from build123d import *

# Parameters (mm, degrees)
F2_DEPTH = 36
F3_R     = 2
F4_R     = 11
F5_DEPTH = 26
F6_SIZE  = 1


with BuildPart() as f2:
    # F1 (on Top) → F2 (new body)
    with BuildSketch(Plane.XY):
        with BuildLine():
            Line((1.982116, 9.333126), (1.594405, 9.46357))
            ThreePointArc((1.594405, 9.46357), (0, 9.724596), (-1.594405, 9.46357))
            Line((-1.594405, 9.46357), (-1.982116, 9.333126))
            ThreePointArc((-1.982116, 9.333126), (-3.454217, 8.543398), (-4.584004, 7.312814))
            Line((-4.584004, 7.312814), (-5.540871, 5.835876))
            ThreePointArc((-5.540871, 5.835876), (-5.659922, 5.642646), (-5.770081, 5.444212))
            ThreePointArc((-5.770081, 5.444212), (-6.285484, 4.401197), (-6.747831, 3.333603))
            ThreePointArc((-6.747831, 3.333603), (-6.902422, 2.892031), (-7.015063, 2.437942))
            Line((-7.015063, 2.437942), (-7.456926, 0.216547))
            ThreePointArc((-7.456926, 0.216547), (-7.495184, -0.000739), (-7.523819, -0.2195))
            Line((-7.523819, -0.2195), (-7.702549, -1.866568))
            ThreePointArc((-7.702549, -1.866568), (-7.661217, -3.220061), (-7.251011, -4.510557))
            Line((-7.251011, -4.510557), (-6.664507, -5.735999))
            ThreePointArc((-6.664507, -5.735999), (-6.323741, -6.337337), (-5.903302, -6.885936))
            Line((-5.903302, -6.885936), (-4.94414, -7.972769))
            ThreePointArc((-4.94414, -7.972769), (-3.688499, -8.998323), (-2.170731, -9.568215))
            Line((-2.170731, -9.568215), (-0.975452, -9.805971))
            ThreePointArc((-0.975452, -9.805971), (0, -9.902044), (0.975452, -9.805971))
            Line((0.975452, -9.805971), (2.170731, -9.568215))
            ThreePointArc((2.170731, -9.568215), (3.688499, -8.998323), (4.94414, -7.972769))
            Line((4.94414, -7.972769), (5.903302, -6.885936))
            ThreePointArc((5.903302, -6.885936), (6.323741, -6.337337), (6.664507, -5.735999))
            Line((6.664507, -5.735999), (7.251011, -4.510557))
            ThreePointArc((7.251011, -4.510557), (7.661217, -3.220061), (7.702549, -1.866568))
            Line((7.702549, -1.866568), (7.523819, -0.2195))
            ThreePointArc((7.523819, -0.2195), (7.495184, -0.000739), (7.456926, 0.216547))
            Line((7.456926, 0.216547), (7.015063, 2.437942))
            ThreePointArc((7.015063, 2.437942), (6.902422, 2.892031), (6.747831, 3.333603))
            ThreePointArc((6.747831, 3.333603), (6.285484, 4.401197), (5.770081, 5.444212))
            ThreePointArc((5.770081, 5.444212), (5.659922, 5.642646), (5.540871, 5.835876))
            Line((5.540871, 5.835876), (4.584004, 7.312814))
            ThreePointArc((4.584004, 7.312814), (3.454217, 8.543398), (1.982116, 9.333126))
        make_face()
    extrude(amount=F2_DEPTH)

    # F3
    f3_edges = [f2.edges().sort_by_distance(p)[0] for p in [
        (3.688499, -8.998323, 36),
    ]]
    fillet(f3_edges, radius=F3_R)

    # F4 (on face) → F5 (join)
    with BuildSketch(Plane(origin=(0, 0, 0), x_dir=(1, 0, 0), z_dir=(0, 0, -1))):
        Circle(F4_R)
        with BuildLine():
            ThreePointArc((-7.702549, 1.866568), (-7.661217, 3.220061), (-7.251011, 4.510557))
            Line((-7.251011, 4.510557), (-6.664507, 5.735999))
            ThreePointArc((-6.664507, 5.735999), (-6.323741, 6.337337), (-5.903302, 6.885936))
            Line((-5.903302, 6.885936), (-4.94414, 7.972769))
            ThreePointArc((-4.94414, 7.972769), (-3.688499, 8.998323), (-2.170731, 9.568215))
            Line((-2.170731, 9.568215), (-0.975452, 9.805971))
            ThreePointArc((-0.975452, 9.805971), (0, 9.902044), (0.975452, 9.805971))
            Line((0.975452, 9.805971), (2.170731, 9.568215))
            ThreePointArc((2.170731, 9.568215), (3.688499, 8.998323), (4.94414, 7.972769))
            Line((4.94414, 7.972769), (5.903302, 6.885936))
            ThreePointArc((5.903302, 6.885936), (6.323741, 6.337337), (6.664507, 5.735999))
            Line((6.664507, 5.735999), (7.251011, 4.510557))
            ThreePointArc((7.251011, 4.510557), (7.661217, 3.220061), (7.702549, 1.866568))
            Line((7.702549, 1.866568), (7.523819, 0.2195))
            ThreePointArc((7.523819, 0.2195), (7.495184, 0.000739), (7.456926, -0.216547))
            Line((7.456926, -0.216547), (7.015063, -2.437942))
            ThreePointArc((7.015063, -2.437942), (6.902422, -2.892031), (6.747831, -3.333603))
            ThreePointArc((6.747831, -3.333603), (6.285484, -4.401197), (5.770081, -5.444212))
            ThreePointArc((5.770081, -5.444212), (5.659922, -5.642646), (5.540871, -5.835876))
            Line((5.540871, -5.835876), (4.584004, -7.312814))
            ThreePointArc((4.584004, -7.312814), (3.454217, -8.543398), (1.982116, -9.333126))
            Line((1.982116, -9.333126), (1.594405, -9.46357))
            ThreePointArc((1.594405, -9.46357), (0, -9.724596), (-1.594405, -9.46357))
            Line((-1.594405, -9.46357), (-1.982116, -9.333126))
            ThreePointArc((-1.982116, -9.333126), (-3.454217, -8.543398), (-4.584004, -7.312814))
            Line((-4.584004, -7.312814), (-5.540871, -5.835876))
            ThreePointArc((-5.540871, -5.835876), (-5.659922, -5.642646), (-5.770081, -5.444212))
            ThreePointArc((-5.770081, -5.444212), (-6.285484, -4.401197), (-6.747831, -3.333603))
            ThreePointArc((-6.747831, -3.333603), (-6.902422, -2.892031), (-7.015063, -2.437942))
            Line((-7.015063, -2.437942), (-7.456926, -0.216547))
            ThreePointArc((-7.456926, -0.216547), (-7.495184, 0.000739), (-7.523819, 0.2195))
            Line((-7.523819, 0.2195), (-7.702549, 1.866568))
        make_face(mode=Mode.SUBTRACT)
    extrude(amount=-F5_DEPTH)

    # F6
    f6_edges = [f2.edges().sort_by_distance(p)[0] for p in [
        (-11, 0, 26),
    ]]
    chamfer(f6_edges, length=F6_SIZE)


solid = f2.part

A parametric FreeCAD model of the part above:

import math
import FreeCAD as App
import Part
import Sketcher


def edges_at(feature, points):
    """Names of the edges that pass closest to the given points."""
    edges = feature.Shape.Edges
    near = lambda p: min(range(len(edges)), key=lambda i: edges[i].distToShape(Part.Vertex(*p))[0])
    return sorted({f"Edge{near(p) + 1}" for p in points})

doc = App.newDocument("Part")
body = doc.addObject("PartDesign::Body", "Body")

sketch1 = body.newObject("Sketcher::SketchObject", "Sketch")
sketch1.AttachmentSupport = (doc.getObject("XY_Plane"), [""])
sketch1.MapMode = "FlatFace"
sketch1.addGeometry(Part.LineSegment(App.Vector(1.982116, 9.333126, 0), App.Vector(1.594405, 9.46357, 0)), False)
sketch1.addGeometry(Part.ArcOfCircle(Part.Circle(App.Vector(0, 4.724592, 0), App.Vector(0, 0, 1), 5.000004), math.radians(71.404748), math.radians(108.595252)), False)
sketch1.addGeometry(Part.LineSegment(App.Vector(-1.594405, 9.46357, 0), App.Vector(-1.982116, 9.333126, 0)), False)
sketch1.addGeometry(Part.ArcOfCircle(Part.Circle(App.Vector(-0.387714, 4.594157, 0), App.Vector(0, 0, 1), 4.999995), math.radians(108.595251), math.radians(147.061943)), False)
sketch1.addGeometry(Part.LineSegment(App.Vector(-4.584004, 7.312814, 0), App.Vector(-5.540871, 5.835876, 0)), False)
sketch1.addGeometry(Part.ArcOfCircle(Part.Circle(App.Vector(-1.34486, 3.117381, 0), App.Vector(0, 0, 1), 4.999673), math.radians(147.061765), math.radians(152.264101)), False)
sketch1.addGeometry(Part.ArcOfCircle(Part.Circle(App.Vector(14.718115, -5.328824, 0), App.Vector(0, 0, 1), 23.147883), math.radians(152.263856), math.radians(158.023818)), False)
sketch1.addGeometry(Part.ArcOfCircle(Part.Circle(App.Vector(-2.111213, 1.462512, 0), App.Vector(0, 0, 1), 4.999921), math.radians(158.02363), math.radians(168.750069)), False)
sketch1.addGeometry(Part.LineSegment(App.Vector(-7.015063, 2.437942, 0), App.Vector(-7.456926, 0.216547, 0)), False)
sketch1.addGeometry(Part.ArcOfCircle(Part.Circle(App.Vector(-2.553033, -0.758903, 0), App.Vector(0, 0, 1), 4.999967), math.radians(168.749946), math.radians(173.806806)), False)
sketch1.addGeometry(Part.LineSegment(App.Vector(-7.523819, -0.2195, 0), App.Vector(-7.702549, -1.866568, 0)), False)
sketch1.addGeometry(Part.ArcOfCircle(Part.Circle(App.Vector(-2.831151, -2.395186, 0), App.Vector(0, 0, 1), 4.899995), math.radians(173.806798), math.radians(205.576049)), False)
sketch1.addGeometry(Part.LineSegment(App.Vector(-7.251011, -4.510557, 0), App.Vector(-6.664507, -5.735999, 0)), False)
sketch1.addGeometry(Part.ArcOfCircle(Part.Circle(App.Vector(-2.154483, -3.577482, 0), App.Vector(0, 0, 1), 4.999952), math.radians(-154.424019), math.radians(-138.570555)), False)
sketch1.addGeometry(Part.LineSegment(App.Vector(-5.903302, -6.885936, 0), App.Vector(-4.94414, -7.972769, 0)), False)
sketch1.addGeometry(Part.ArcOfCircle(Part.Circle(App.Vector(-1.195278, -4.664287, 0), App.Vector(0, 0, 1), 5.000002), math.radians(-138.57064), math.radians(-101.25001)), False)
sketch1.addGeometry(Part.LineSegment(App.Vector(-2.170731, -9.568215, 0), App.Vector(-0.975452, -9.805971, 0)), False)
sketch1.addGeometry(Part.ArcOfCircle(Part.Circle(App.Vector(0, -4.90201, 0), App.Vector(0, 0, 1), 5.000034), math.radians(-101.249926), math.radians(-78.750074)), False)
sketch1.addGeometry(Part.LineSegment(App.Vector(0.975452, -9.805971, 0), App.Vector(2.170731, -9.568215, 0)), False)
sketch1.addGeometry(Part.ArcOfCircle(Part.Circle(App.Vector(1.195278, -4.664287, 0), App.Vector(0, 0, 1), 5.000002), math.radians(-78.74999), math.radians(-41.42936)), False)
sketch1.addGeometry(Part.LineSegment(App.Vector(4.94414, -7.972769, 0), App.Vector(5.903302, -6.885936, 0)), False)
sketch1.addGeometry(Part.ArcOfCircle(Part.Circle(App.Vector(2.154483, -3.577482, 0), App.Vector(0, 0, 1), 4.999952), math.radians(-41.429445), math.radians(-25.575981)), False)
sketch1.addGeometry(Part.LineSegment(App.Vector(6.664507, -5.735999, 0), App.Vector(7.251011, -4.510557, 0)), False)
sketch1.addGeometry(Part.ArcOfCircle(Part.Circle(App.Vector(2.831151, -2.395186, 0), App.Vector(0, 0, 1), 4.899995), math.radians(-25.576049), math.radians(6.193202)), False)
sketch1.addGeometry(Part.LineSegment(App.Vector(7.702549, -1.866568, 0), App.Vector(7.523819, -0.2195, 0)), False)
sketch1.addGeometry(Part.ArcOfCircle(Part.Circle(App.Vector(2.553033, -0.758903, 0), App.Vector(0, 0, 1), 4.999967), math.radians(6.193194), math.radians(11.250054)), False)
sketch1.addGeometry(Part.LineSegment(App.Vector(7.456926, 0.216547, 0), App.Vector(7.015063, 2.437942, 0)), False)
sketch1.addGeometry(Part.ArcOfCircle(Part.Circle(App.Vector(2.111213, 1.462512, 0), App.Vector(0, 0, 1), 4.999921), math.radians(11.249931), math.radians(21.97637)), False)
sketch1.addGeometry(Part.ArcOfCircle(Part.Circle(App.Vector(-14.718115, -5.328824, 0), App.Vector(0, 0, 1), 23.147883), math.radians(21.976182), math.radians(27.736144)), False)
sketch1.addGeometry(Part.ArcOfCircle(Part.Circle(App.Vector(1.34486, 3.117381, 0), App.Vector(0, 0, 1), 4.999673), math.radians(27.735899), math.radians(32.938235)), False)
sketch1.addGeometry(Part.LineSegment(App.Vector(5.540871, 5.835876, 0), App.Vector(4.584004, 7.312814, 0)), False)
sketch1.addGeometry(Part.ArcOfCircle(Part.Circle(App.Vector(0.387714, 4.594157, 0), App.Vector(0, 0, 1), 4.999995), math.radians(32.938057), math.radians(71.404749)), False)
sketch1.addConstraint(Sketcher.Constraint("Coincident", 0, 2, 1, 1))
sketch1.addConstraint(Sketcher.Constraint("Coincident", 1, 2, 2, 1))
sketch1.addConstraint(Sketcher.Constraint("Coincident", 2, 2, 3, 1))
sketch1.addConstraint(Sketcher.Constraint("Coincident", 3, 2, 4, 1))
sketch1.addConstraint(Sketcher.Constraint("Coincident", 4, 2, 5, 1))
sketch1.addConstraint(Sketcher.Constraint("Coincident", 5, 2, 6, 1))
sketch1.addConstraint(Sketcher.Constraint("Coincident", 6, 2, 7, 1))
sketch1.addConstraint(Sketcher.Constraint("Coincident", 7, 2, 8, 1))
sketch1.addConstraint(Sketcher.Constraint("Coincident", 8, 2, 9, 1))
sketch1.addConstraint(Sketcher.Constraint("Coincident", 9, 2, 10, 1))
sketch1.addConstraint(Sketcher.Constraint("Coincident", 10, 2, 11, 1))
sketch1.addConstraint(Sketcher.Constraint("Coincident", 11, 2, 12, 1))
sketch1.addConstraint(Sketcher.Constraint("Coincident", 12, 2, 13, 1))
sketch1.addConstraint(Sketcher.Constraint("Coincident", 13, 2, 14, 1))
sketch1.addConstraint(Sketcher.Constraint("Coincident", 14, 2, 15, 1))
sketch1.addConstraint(Sketcher.Constraint("Coincident", 15, 2, 16, 1))
sketch1.addConstraint(Sketcher.Constraint("Coincident", 16, 2, 17, 1))
sketch1.addConstraint(Sketcher.Constraint("Coincident", 17, 2, 18, 1))
sketch1.addConstraint(Sketcher.Constraint("Coincident", 18, 2, 19, 1))
sketch1.addConstraint(Sketcher.Constraint("Coincident", 19, 2, 20, 1))
sketch1.addConstraint(Sketcher.Constraint("Coincident", 20, 2, 21, 1))
sketch1.addConstraint(Sketcher.Constraint("Coincident", 21, 2, 22, 1))
sketch1.addConstraint(Sketcher.Constraint("Coincident", 22, 2, 23, 1))
sketch1.addConstraint(Sketcher.Constraint("Coincident", 23, 2, 24, 1))
sketch1.addConstraint(Sketcher.Constraint("Coincident", 24, 2, 25, 1))
sketch1.addConstraint(Sketcher.Constraint("Coincident", 25, 2, 26, 1))
sketch1.addConstraint(Sketcher.Constraint("Coincident", 26, 2, 27, 1))
sketch1.addConstraint(Sketcher.Constraint("Coincident", 27, 2, 28, 1))
sketch1.addConstraint(Sketcher.Constraint("Coincident", 28, 2, 29, 1))
sketch1.addConstraint(Sketcher.Constraint("Coincident", 29, 2, 30, 1))
sketch1.addConstraint(Sketcher.Constraint("Coincident", 30, 2, 31, 1))
sketch1.addConstraint(Sketcher.Constraint("Coincident", 31, 2, 0, 1))
sketch1.addConstraint(Sketcher.Constraint("PointOnObject", 1, 3, -2))
sketch1.addConstraint(Sketcher.Constraint("PointOnObject", 17, 3, -2))
sketch1.addConstraint(Sketcher.Constraint("Radius", 15, 5.000002))
sketch1.addConstraint(Sketcher.Constraint("Radius", 19, 5.000002))
sketch1.addConstraint(Sketcher.Constraint("Radius", 7, 4.999921))
sketch1.addConstraint(Sketcher.Constraint("Radius", 13, 4.999952))
sketch1.addConstraint(Sketcher.Constraint("Radius", 21, 4.999952))
sketch1.addConstraint(Sketcher.Constraint("Radius", 27, 4.999921))
sketch1.addConstraint(Sketcher.Constraint("DistanceY", 12, 2, -1, 1, 5.735999))
sketch1.addConstraint(Sketcher.Constraint("DistanceY", 21, 2, -1, 1, 5.735999))
sketch1.addConstraint(Sketcher.Constraint("Radius", 1, 5.000004))
sketch1.addConstraint(Sketcher.Constraint("Radius", 3, 4.999995))
sketch1.addConstraint(Sketcher.Constraint("Radius", 5, 4.999673))
sketch1.addConstraint(Sketcher.Constraint("Radius", 6, 23.147883))
sketch1.addConstraint(Sketcher.Constraint("Radius", 9, 4.999967))
sketch1.addConstraint(Sketcher.Constraint("Radius", 11, 4.899995))
sketch1.addConstraint(Sketcher.Constraint("Radius", 17, 5.000034))
sketch1.addConstraint(Sketcher.Constraint("Radius", 23, 4.899995))
sketch1.addConstraint(Sketcher.Constraint("Radius", 25, 4.999967))
sketch1.addConstraint(Sketcher.Constraint("Radius", 28, 23.147883))
sketch1.addConstraint(Sketcher.Constraint("Radius", 29, 4.999673))
sketch1.addConstraint(Sketcher.Constraint("Radius", 31, 4.999995))
sketch1.addConstraint(Sketcher.Constraint("DistanceY", 9, 2, -1, 1, 0.2195))
sketch1.addConstraint(Sketcher.Constraint("DistanceX", 13, 2, -1, 1, 5.903302))
sketch1.addConstraint(Sketcher.Constraint("DistanceY", 24, 2, -1, 1, 0.2195))
sketch1.addConstraint(Sketcher.Constraint("DistanceX", 7, 3, 3, 3, 1.723499))
sketch1.addConstraint(Sketcher.Constraint("DistanceY", 11, 3, 7, 3, 3.857698))
sketch1.addConstraint(Sketcher.Constraint("DistanceY", 15, 3, 11, 3, 2.269101))
sketch1.addConstraint(Sketcher.Constraint("DistanceY", 19, 3, 11, 3, 2.269101))
sketch1.addConstraint(Sketcher.Constraint("DistanceY", 19, 3, 23, 3, 2.269101))
sketch1.addConstraint(Sketcher.Constraint("DistanceY", 23, 3, 27, 3, 3.857698))
sketch1.addConstraint(Sketcher.Constraint("DistanceX", 28, 3, 7, 3, 12.606902))
sketch1.addConstraint(Sketcher.Constraint("DistanceX", 31, 3, 27, 3, 1.723499))
sketch1.addConstraint(Sketcher.Constraint("DistanceX", 3, 2, 1, 2, 2.989599))
sketch1.addConstraint(Sketcher.Constraint("DistanceY", 5, 2, 3, 2, 1.868602))
sketch1.addConstraint(Sketcher.Constraint("DistanceY", 7, 3, 5, 2, 3.9817))
sketch1.addConstraint(Sketcher.Constraint("DistanceY", 16, 2, 14, 2, 1.833202))
sketch1.addConstraint(Sketcher.Constraint("DistanceY", 27, 3, 28, 2, 3.9817))
sketch1.addConstraint(Sketcher.Constraint("DistanceY", 28, 2, 30, 2, 1.868602))
sketch1.addConstraint(Sketcher.Constraint("DistanceX", 0, 2, 30, 2, 2.989599))
sketch1.addConstraint(Sketcher.Constraint("Distance", 14, 1.449551))
sketch1.addConstraint(Sketcher.Constraint("Distance", 20, 1.449551))
sketch1.addConstraint(Sketcher.Constraint("DistanceX", 5, 3, -1, 1, 1.34486))
sketch1.addConstraint(Sketcher.Constraint("DistanceY", -1, 1, 5, 3, 3.117381))
sketch1.addConstraint(Sketcher.Constraint("DistanceY", -1, 1, 7, 3, 1.462512))
sketch1.addConstraint(Sketcher.Constraint("DistanceX", 11, 3, -1, 1, 2.831151))
sketch1.addConstraint(Sketcher.Constraint("DistanceY", 13, 3, -1, 1, 3.577482))
sketch1.addConstraint(Sketcher.Constraint("DistanceX", 15, 3, -1, 1, 1.195278))
sketch1.addConstraint(Sketcher.Constraint("DistanceY", 17, 3, -1, 1, 4.90201))
sketch1.addConstraint(Sketcher.Constraint("DistanceX", -1, 1, 19, 3, 1.195278))
sketch1.addConstraint(Sketcher.Constraint("DistanceY", 21, 3, -1, 1, 3.577482))
sketch1.addConstraint(Sketcher.Constraint("DistanceX", -1, 1, 23, 3, 2.831151))
sketch1.addConstraint(Sketcher.Constraint("DistanceX", -1, 1, 29, 3, 1.34486))
sketch1.addConstraint(Sketcher.Constraint("DistanceY", -1, 1, 29, 3, 3.117381))
sketch1.addConstraint(Sketcher.Constraint("DistanceY", -1, 1, 0, 2, 9.46357))
sketch1.addConstraint(Sketcher.Constraint("DistanceY", -1, 1, 1, 2, 9.46357))
sketch1.addConstraint(Sketcher.Constraint("DistanceX", 4, 2, -1, 1, 5.540871))
sketch1.addConstraint(Sketcher.Constraint("DistanceX", 6, 2, -1, 1, 6.747831))
sketch1.addConstraint(Sketcher.Constraint("DistanceY", -1, 1, 7, 2, 2.437942))
sketch1.addConstraint(Sketcher.Constraint("DistanceX", 9, 2, -1, 1, 7.523819))
sketch1.addConstraint(Sketcher.Constraint("DistanceX", 10, 2, -1, 1, 7.702549))
sketch1.addConstraint(Sketcher.Constraint("DistanceX", 11, 2, -1, 1, 7.251011))
sketch1.addConstraint(Sketcher.Constraint("DistanceX", 14, 2, -1, 1, 4.94414))
sketch1.addConstraint(Sketcher.Constraint("DistanceX", 15, 2, -1, 1, 2.170731))
sketch1.addConstraint(Sketcher.Constraint("DistanceX", -1, 1, 17, 2, 0.975452))
sketch1.addConstraint(Sketcher.Constraint("DistanceX", -1, 1, 18, 2, 2.170731))
sketch1.addConstraint(Sketcher.Constraint("DistanceX", -1, 1, 19, 2, 4.94414))
sketch1.addConstraint(Sketcher.Constraint("DistanceX", -1, 1, 22, 2, 7.251011))
sketch1.addConstraint(Sketcher.Constraint("DistanceX", -1, 1, 23, 2, 7.702549))
sketch1.addConstraint(Sketcher.Constraint("DistanceX", -1, 1, 24, 2, 7.523819))
sketch1.addConstraint(Sketcher.Constraint("DistanceY", -1, 1, 26, 2, 2.437942))
sketch1.addConstraint(Sketcher.Constraint("DistanceX", -1, 1, 27, 2, 6.747831))
sketch1.addConstraint(Sketcher.Constraint("DistanceX", -1, 1, 29, 2, 5.540871))
sketch1.addConstraint(Sketcher.Constraint("DistanceY", 5, 3, 1, 3, 1.607212))
sketch1.addConstraint(Sketcher.Constraint("DistanceX", 3, 3, 6, 3, 15.105829))
sketch1.addConstraint(Sketcher.Constraint("DistanceX", 9, 3, 7, 3, 0.44182))
sketch1.addConstraint(Sketcher.Constraint("DistanceX", 15, 3, 21, 3, 3.349761))
sketch1.addConstraint(Sketcher.Constraint("DistanceX", 25, 3, 23, 3, 0.278118))
sketch1.addConstraint(Sketcher.Constraint("DistanceX", 2, 2, 1, 2, 0.387711))
sketch1.addConstraint(Sketcher.Constraint("DistanceY", 9, 3, 8, 2, 0.97545))
sketch1.addConstraint(Sketcher.Constraint("DistanceY", 25, 3, 25, 2, 0.97545))
sketch1.addConstraint(Sketcher.Constraint("DistanceX", 0, 2, 31, 2, 0.387711))
pad1 = body.newObject("PartDesign::Pad", "Pad")
pad1.Profile = sketch1
pad1.Length = 36
doc.recompute()

fillet = body.newObject("PartDesign::Fillet", "Fillet")
fillet.Base = (pad1, edges_at(pad1, [(3.688, -8.998, 36)]))
fillet.Radius = 2

sketch2 = body.newObject("Sketcher::SketchObject", "Sketch001")
sketch2.AttachmentSupport = (doc.getObject("XY_Plane"), [""])
sketch2.MapMode = "FlatFace"
sketch2.addGeometry(Part.Circle(App.Vector(0, 0, 0), App.Vector(0, 0, 1), 11), False)
sketch2.addGeometry(Part.LineSegment(App.Vector(-7.523819, -0.2195, 0), App.Vector(-7.702549, -1.866568, 0)), False)
sketch2.addGeometry(Part.ArcOfCircle(Part.Circle(App.Vector(-2.831151, -2.395186, 0), App.Vector(0, 0, 1), 4.899995), math.radians(173.806798), math.radians(205.576049)), False)
sketch2.addGeometry(Part.LineSegment(App.Vector(-7.251011, -4.510557, 0), App.Vector(-6.664507, -5.735999, 0)), False)
sketch2.addGeometry(Part.ArcOfCircle(Part.Circle(App.Vector(-2.154483, -3.577482, 0), App.Vector(0, 0, 1), 4.999952), math.radians(-154.424019), math.radians(-138.570555)), False)
sketch2.addGeometry(Part.LineSegment(App.Vector(-5.903302, -6.885936, 0), App.Vector(-4.94414, -7.972769, 0)), False)
sketch2.addGeometry(Part.ArcOfCircle(Part.Circle(App.Vector(-1.195278, -4.664287, 0), App.Vector(0, 0, 1), 5.000002), math.radians(-138.57064), math.radians(-101.25001)), False)
sketch2.addGeometry(Part.LineSegment(App.Vector(-2.170731, -9.568215, 0), App.Vector(-0.975452, -9.805971, 0)), False)
sketch2.addGeometry(Part.ArcOfCircle(Part.Circle(App.Vector(0, -4.90201, 0), App.Vector(0, 0, 1), 5.000034), math.radians(-101.249926), math.radians(-78.750074)), False)
sketch2.addGeometry(Part.LineSegment(App.Vector(0.975452, -9.805971, 0), App.Vector(2.170731, -9.568215, 0)), False)
sketch2.addGeometry(Part.ArcOfCircle(Part.Circle(App.Vector(1.195278, -4.664287, 0), App.Vector(0, 0, 1), 5.000002), math.radians(-78.74999), math.radians(-41.42936)), False)
sketch2.addGeometry(Part.LineSegment(App.Vector(4.94414, -7.972769, 0), App.Vector(5.903302, -6.885936, 0)), False)
sketch2.addGeometry(Part.ArcOfCircle(Part.Circle(App.Vector(2.154483, -3.577482, 0), App.Vector(0, 0, 1), 4.999952), math.radians(-41.429445), math.radians(-25.575981)), False)
sketch2.addGeometry(Part.LineSegment(App.Vector(6.664507, -5.735999, 0), App.Vector(7.251011, -4.510557, 0)), False)
sketch2.addGeometry(Part.ArcOfCircle(Part.Circle(App.Vector(2.831151, -2.395186, 0), App.Vector(0, 0, 1), 4.899995), math.radians(-25.576049), math.radians(6.193202)), False)
sketch2.addGeometry(Part.LineSegment(App.Vector(7.702549, -1.866568, 0), App.Vector(7.523819, -0.2195, 0)), False)
sketch2.addGeometry(Part.ArcOfCircle(Part.Circle(App.Vector(2.553033, -0.758903, 0), App.Vector(0, 0, 1), 4.999967), math.radians(6.193194), math.radians(11.250054)), False)
sketch2.addGeometry(Part.LineSegment(App.Vector(7.456926, 0.216547, 0), App.Vector(7.015063, 2.437942, 0)), False)
sketch2.addGeometry(Part.ArcOfCircle(Part.Circle(App.Vector(2.111213, 1.462512, 0), App.Vector(0, 0, 1), 4.999921), math.radians(11.249931), math.radians(21.97637)), False)
sketch2.addGeometry(Part.ArcOfCircle(Part.Circle(App.Vector(-14.718115, -5.328824, 0), App.Vector(0, 0, 1), 23.147883), math.radians(21.976182), math.radians(27.736144)), False)
sketch2.addGeometry(Part.ArcOfCircle(Part.Circle(App.Vector(1.34486, 3.117381, 0), App.Vector(0, 0, 1), 4.999673), math.radians(27.735899), math.radians(32.938235)), False)
sketch2.addGeometry(Part.LineSegment(App.Vector(5.540871, 5.835876, 0), App.Vector(4.584004, 7.312814, 0)), False)
sketch2.addGeometry(Part.ArcOfCircle(Part.Circle(App.Vector(0.387714, 4.594157, 0), App.Vector(0, 0, 1), 4.999995), math.radians(32.938057), math.radians(71.404749)), False)
sketch2.addGeometry(Part.LineSegment(App.Vector(1.982116, 9.333126, 0), App.Vector(1.594405, 9.46357, 0)), False)
sketch2.addGeometry(Part.ArcOfCircle(Part.Circle(App.Vector(0, 4.724592, 0), App.Vector(0, 0, 1), 5.000004), math.radians(71.404748), math.radians(108.595252)), False)
sketch2.addGeometry(Part.LineSegment(App.Vector(-1.594405, 9.46357, 0), App.Vector(-1.982116, 9.333126, 0)), False)
sketch2.addGeometry(Part.ArcOfCircle(Part.Circle(App.Vector(-0.387714, 4.594157, 0), App.Vector(0, 0, 1), 4.999995), math.radians(108.595251), math.radians(147.061943)), False)
sketch2.addGeometry(Part.LineSegment(App.Vector(-4.584004, 7.312814, 0), App.Vector(-5.540871, 5.835876, 0)), False)
sketch2.addGeometry(Part.ArcOfCircle(Part.Circle(App.Vector(-1.34486, 3.117381, 0), App.Vector(0, 0, 1), 4.999673), math.radians(147.061765), math.radians(152.264101)), False)
sketch2.addGeometry(Part.ArcOfCircle(Part.Circle(App.Vector(14.718115, -5.328824, 0), App.Vector(0, 0, 1), 23.147883), math.radians(152.263856), math.radians(158.023818)), False)
sketch2.addGeometry(Part.ArcOfCircle(Part.Circle(App.Vector(-2.111213, 1.462512, 0), App.Vector(0, 0, 1), 4.999921), math.radians(158.02363), math.radians(168.750069)), False)
sketch2.addGeometry(Part.LineSegment(App.Vector(-7.015063, 2.437942, 0), App.Vector(-7.456926, 0.216547, 0)), False)
sketch2.addGeometry(Part.ArcOfCircle(Part.Circle(App.Vector(-2.553033, -0.758903, 0), App.Vector(0, 0, 1), 4.999967), math.radians(168.749946), math.radians(173.806806)), False)
sketch2.addConstraint(Sketcher.Constraint("Coincident", 1, 2, 2, 1))
sketch2.addConstraint(Sketcher.Constraint("Coincident", 2, 2, 3, 1))
sketch2.addConstraint(Sketcher.Constraint("Coincident", 3, 2, 4, 1))
sketch2.addConstraint(Sketcher.Constraint("Coincident", 4, 2, 5, 1))
sketch2.addConstraint(Sketcher.Constraint("Coincident", 5, 2, 6, 1))
sketch2.addConstraint(Sketcher.Constraint("Coincident", 6, 2, 7, 1))
sketch2.addConstraint(Sketcher.Constraint("Coincident", 7, 2, 8, 1))
sketch2.addConstraint(Sketcher.Constraint("Coincident", 8, 2, 9, 1))
sketch2.addConstraint(Sketcher.Constraint("Coincident", 9, 2, 10, 1))
sketch2.addConstraint(Sketcher.Constraint("Coincident", 10, 2, 11, 1))
sketch2.addConstraint(Sketcher.Constraint("Coincident", 11, 2, 12, 1))
sketch2.addConstraint(Sketcher.Constraint("Coincident", 12, 2, 13, 1))
sketch2.addConstraint(Sketcher.Constraint("Coincident", 13, 2, 14, 1))
sketch2.addConstraint(Sketcher.Constraint("Coincident", 14, 2, 15, 1))
sketch2.addConstraint(Sketcher.Constraint("Coincident", 15, 2, 16, 1))
sketch2.addConstraint(Sketcher.Constraint("Coincident", 16, 2, 17, 1))
sketch2.addConstraint(Sketcher.Constraint("Coincident", 17, 2, 18, 1))
sketch2.addConstraint(Sketcher.Constraint("Coincident", 18, 2, 19, 1))
sketch2.addConstraint(Sketcher.Constraint("Coincident", 19, 2, 20, 1))
sketch2.addConstraint(Sketcher.Constraint("Coincident", 20, 2, 21, 1))
sketch2.addConstraint(Sketcher.Constraint("Coincident", 21, 2, 22, 1))
sketch2.addConstraint(Sketcher.Constraint("Coincident", 22, 2, 23, 1))
sketch2.addConstraint(Sketcher.Constraint("Coincident", 23, 2, 24, 1))
sketch2.addConstraint(Sketcher.Constraint("Coincident", 24, 2, 25, 1))
sketch2.addConstraint(Sketcher.Constraint("Coincident", 25, 2, 26, 1))
sketch2.addConstraint(Sketcher.Constraint("Coincident", 26, 2, 27, 1))
sketch2.addConstraint(Sketcher.Constraint("Coincident", 27, 2, 28, 1))
sketch2.addConstraint(Sketcher.Constraint("Coincident", 28, 2, 29, 1))
sketch2.addConstraint(Sketcher.Constraint("Coincident", 29, 2, 30, 1))
sketch2.addConstraint(Sketcher.Constraint("Coincident", 30, 2, 31, 1))
sketch2.addConstraint(Sketcher.Constraint("Coincident", 31, 2, 32, 1))
sketch2.addConstraint(Sketcher.Constraint("Coincident", 32, 2, 1, 1))
sketch2.addConstraint(Sketcher.Constraint("Coincident", 0, 3, -1, 1))
sketch2.addConstraint(Sketcher.Constraint("PointOnObject", 8, 3, -2))
sketch2.addConstraint(Sketcher.Constraint("PointOnObject", 24, 3, -2))
sketch2.addConstraint(Sketcher.Constraint("Diameter", 0, 22.0))
sketch2.addConstraint(Sketcher.Constraint("Radius", 6, 5.000002))
sketch2.addConstraint(Sketcher.Constraint("Radius", 10, 5.000002))
sketch2.addConstraint(Sketcher.Constraint("Radius", 4, 4.999952))
sketch2.addConstraint(Sketcher.Constraint("Radius", 12, 4.999952))
sketch2.addConstraint(Sketcher.Constraint("Radius", 18, 4.999921))
sketch2.addConstraint(Sketcher.Constraint("Radius", 30, 4.999921))
sketch2.addConstraint(Sketcher.Constraint("DistanceY", 3, 2, -1, 1, 5.735999))
sketch2.addConstraint(Sketcher.Constraint("DistanceY", 12, 2, -1, 1, 5.735999))
sketch2.addConstraint(Sketcher.Constraint("Radius", 2, 4.899995))
sketch2.addConstraint(Sketcher.Constraint("Radius", 8, 5.000034))
sketch2.addConstraint(Sketcher.Constraint("Radius", 14, 4.899995))
sketch2.addConstraint(Sketcher.Constraint("Radius", 16, 4.999967))
sketch2.addConstraint(Sketcher.Constraint("Radius", 19, 23.147883))
sketch2.addConstraint(Sketcher.Constraint("Radius", 20, 4.999673))
sketch2.addConstraint(Sketcher.Constraint("Radius", 22, 4.999995))
sketch2.addConstraint(Sketcher.Constraint("Radius", 24, 5.000004))
sketch2.addConstraint(Sketcher.Constraint("Radius", 26, 4.999995))
sketch2.addConstraint(Sketcher.Constraint("Radius", 28, 4.999673))
sketch2.addConstraint(Sketcher.Constraint("Radius", 29, 23.147883))
sketch2.addConstraint(Sketcher.Constraint("Radius", 32, 4.999967))
sketch2.addConstraint(Sketcher.Constraint("DistanceX", 4, 2, -1, 1, 5.903302))
sketch2.addConstraint(Sketcher.Constraint("DistanceY", 15, 2, -1, 1, 0.2195))
sketch2.addConstraint(Sketcher.Constraint("DistanceY", 32, 2, -1, 1, 0.2195))
sketch2.addConstraint(Sketcher.Constraint("DistanceY", 6, 3, 2, 3, 2.269101))
sketch2.addConstraint(Sketcher.Constraint("DistanceY", 10, 3, 2, 3, 2.269101))
sketch2.addConstraint(Sketcher.Constraint("DistanceY", 10, 3, 14, 3, 2.269101))
sketch2.addConstraint(Sketcher.Constraint("DistanceY", 14, 3, 18, 3, 3.857698))
sketch2.addConstraint(Sketcher.Constraint("DistanceX", 22, 3, 18, 3, 1.723499))
sketch2.addConstraint(Sketcher.Constraint("DistanceX", 18, 3, 29, 3, 12.606902))
sketch2.addConstraint(Sketcher.Constraint("DistanceX", 30, 3, 26, 3, 1.723499))
sketch2.addConstraint(Sketcher.Constraint("DistanceY", 7, 2, 5, 2, 1.833202))
sketch2.addConstraint(Sketcher.Constraint("DistanceY", 18, 3, 19, 2, 3.9817))
sketch2.addConstraint(Sketcher.Constraint("DistanceY", 19, 2, 21, 2, 1.868602))
sketch2.addConstraint(Sketcher.Constraint("DistanceX", 23, 2, 21, 2, 2.989599))
sketch2.addConstraint(Sketcher.Constraint("DistanceX", 26, 2, 24, 2, 2.989599))
sketch2.addConstraint(Sketcher.Constraint("DistanceY", 28, 2, 26, 2, 1.868602))
sketch2.addConstraint(Sketcher.Constraint("DistanceY", 30, 3, 28, 2, 3.9817))
sketch2.addConstraint(Sketcher.Constraint("Distance", 5, 1.449551))
sketch2.addConstraint(Sketcher.Constraint("Distance", 11, 1.449551))
sketch2.addConstraint(Sketcher.Constraint("DistanceX", 2, 3, -1, 1, 2.831151))
sketch2.addConstraint(Sketcher.Constraint("DistanceY", 4, 3, -1, 1, 3.577482))
sketch2.addConstraint(Sketcher.Constraint("DistanceX", 6, 3, -1, 1, 1.195278))
sketch2.addConstraint(Sketcher.Constraint("DistanceY", 8, 3, -1, 1, 4.90201))
sketch2.addConstraint(Sketcher.Constraint("DistanceX", -1, 1, 10, 3, 1.195278))
sketch2.addConstraint(Sketcher.Constraint("DistanceY", 12, 3, -1, 1, 3.577482))
sketch2.addConstraint(Sketcher.Constraint("DistanceX", -1, 1, 14, 3, 2.831151))
sketch2.addConstraint(Sketcher.Constraint("DistanceY", -1, 1, 18, 3, 1.462512))
sketch2.addConstraint(Sketcher.Constraint("DistanceX", -1, 1, 20, 3, 1.34486))
sketch2.addConstraint(Sketcher.Constraint("DistanceY", -1, 1, 20, 3, 3.117381))
sketch2.addConstraint(Sketcher.Constraint("DistanceX", 28, 3, -1, 1, 1.34486))
sketch2.addConstraint(Sketcher.Constraint("DistanceY", -1, 1, 28, 3, 3.117381))
sketch2.addConstraint(Sketcher.Constraint("DistanceY", -1, 1, 30, 3, 1.462512))
sketch2.addConstraint(Sketcher.Constraint("DistanceX", 1, 2, -1, 1, 7.702549))
sketch2.addConstraint(Sketcher.Constraint("DistanceX", 2, 2, -1, 1, 7.251011))
sketch2.addConstraint(Sketcher.Constraint("DistanceX", 5, 2, -1, 1, 4.94414))
sketch2.addConstraint(Sketcher.Constraint("DistanceX", 6, 2, -1, 1, 2.170731))
sketch2.addConstraint(Sketcher.Constraint("DistanceX", -1, 1, 8, 2, 0.975452))
sketch2.addConstraint(Sketcher.Constraint("DistanceX", -1, 1, 9, 2, 2.170731))
sketch2.addConstraint(Sketcher.Constraint("DistanceX", -1, 1, 10, 2, 4.94414))
sketch2.addConstraint(Sketcher.Constraint("DistanceX", -1, 1, 13, 2, 7.251011))
sketch2.addConstraint(Sketcher.Constraint("DistanceX", -1, 1, 14, 2, 7.702549))
sketch2.addConstraint(Sketcher.Constraint("DistanceX", -1, 1, 15, 2, 7.523819))
sketch2.addConstraint(Sketcher.Constraint("DistanceY", -1, 1, 17, 2, 2.437942))
sketch2.addConstraint(Sketcher.Constraint("DistanceX", -1, 1, 18, 2, 6.747831))
sketch2.addConstraint(Sketcher.Constraint("DistanceX", -1, 1, 20, 2, 5.540871))
sketch2.addConstraint(Sketcher.Constraint("DistanceY", -1, 1, 23, 2, 9.46357))
sketch2.addConstraint(Sketcher.Constraint("DistanceY", -1, 1, 24, 2, 9.46357))
sketch2.addConstraint(Sketcher.Constraint("DistanceX", 27, 2, -1, 1, 5.540871))
sketch2.addConstraint(Sketcher.Constraint("DistanceX", 29, 2, -1, 1, 6.747831))
sketch2.addConstraint(Sketcher.Constraint("DistanceY", -1, 1, 30, 2, 2.437942))
sketch2.addConstraint(Sketcher.Constraint("DistanceX", 32, 2, -1, 1, 7.523819))
sketch2.addConstraint(Sketcher.Constraint("DistanceX", 6, 3, 12, 3, 3.349761))
sketch2.addConstraint(Sketcher.Constraint("DistanceX", 16, 3, 14, 3, 0.278118))
sketch2.addConstraint(Sketcher.Constraint("DistanceX", 18, 3, 16, 3, 0.44182))
sketch2.addConstraint(Sketcher.Constraint("DistanceY", 16, 3, 22, 3, 5.353059))
sketch2.addConstraint(Sketcher.Constraint("DistanceX", 2, 3, 32, 3, 0.278118))
sketch2.addConstraint(Sketcher.Constraint("DistanceY", 16, 3, 16, 2, 0.97545))
sketch2.addConstraint(Sketcher.Constraint("DistanceX", 22, 2, 21, 2, 2.601888))
sketch2.addConstraint(Sketcher.Constraint("DistanceX", 25, 2, 24, 2, 0.387711))
sketch2.addConstraint(Sketcher.Constraint("DistanceY", 32, 3, 31, 2, 0.97545))
pad2 = body.newObject("PartDesign::Pad", "Pad001")
pad2.Profile = sketch2
pad2.Length = 26
doc.recompute()

chamfer = body.newObject("PartDesign::Chamfer", "Chamfer")
chamfer.Base = (pad2, edges_at(pad2, [(-11, 0, 26)]))
chamfer.Size = 1

doc.recompute()
